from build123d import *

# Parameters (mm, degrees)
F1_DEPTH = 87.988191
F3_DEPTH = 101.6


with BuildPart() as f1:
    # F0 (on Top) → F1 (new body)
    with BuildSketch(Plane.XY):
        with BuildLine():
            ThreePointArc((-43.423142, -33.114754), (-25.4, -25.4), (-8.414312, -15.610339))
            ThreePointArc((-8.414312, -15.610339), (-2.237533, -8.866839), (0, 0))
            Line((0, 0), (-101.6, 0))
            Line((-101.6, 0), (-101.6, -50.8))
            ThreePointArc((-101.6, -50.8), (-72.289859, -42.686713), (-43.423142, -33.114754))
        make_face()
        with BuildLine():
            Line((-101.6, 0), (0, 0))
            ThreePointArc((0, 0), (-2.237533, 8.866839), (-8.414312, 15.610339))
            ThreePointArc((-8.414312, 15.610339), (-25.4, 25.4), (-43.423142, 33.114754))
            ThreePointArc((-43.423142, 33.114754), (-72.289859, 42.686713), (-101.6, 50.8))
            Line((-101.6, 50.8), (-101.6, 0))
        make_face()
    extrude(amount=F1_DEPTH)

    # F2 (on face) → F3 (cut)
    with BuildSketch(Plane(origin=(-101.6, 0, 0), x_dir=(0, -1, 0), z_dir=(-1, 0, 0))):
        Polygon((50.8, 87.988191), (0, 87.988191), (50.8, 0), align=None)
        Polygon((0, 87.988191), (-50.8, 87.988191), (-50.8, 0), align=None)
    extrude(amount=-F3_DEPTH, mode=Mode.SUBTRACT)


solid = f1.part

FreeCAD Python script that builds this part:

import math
import FreeCAD as App
import Part
import Sketcher
from FreeCAD import Vector
Q = App.Units.Quantity

doc = App.newDocument("Part")
body = doc.addObject("PartDesign::Body", "Body")

sketch1 = doc.addObject("Sketcher::SketchObject", "Sketch")
body.addObject(sketch1)
sketch1.AttachmentSupport = (doc.XY_Plane, [""])
sketch1.MapMode = "FlatFace"
sketch1.addGeometry([
    Part.ArcOfCircle(Part.Circle(Vector(-99, 123, 0), Vector(0, 0, 1), 166), math.radians(-70.22), math.radians(-56.65)),
    Part.ArcOfCircle(Part.Circle(Vector(-19, 0, 0), Vector(0, 0, 1), 19), math.radians(-57), math.radians(0)),
    Part.ArcOfCircle(Part.Circle(Vector(-19, 0, 0), Vector(0, 0, 1), 19), math.radians(0), math.radians(57)),
    Part.ArcOfCircle(Part.Circle(Vector(-99, -123, 0), Vector(0, 0, 1), 166), math.radians(56.65), math.radians(70.22)),
    Part.ArcOfCircle(Part.Circle(Vector(-249, -538, 0), Vector(0, 0, 1), 607), math.radians(70.22), math.radians(75.96)),
    Part.LineSegment(Vector(-102, 51, 0), Vector(-102, -51, 0)),
    Part.ArcOfCircle(Part.Circle(Vector(-249, 538, 0), Vector(0, 0, 1), 607), math.radians(-75.96), math.radians(-70.22)),
], False)
sketch1.addConstraint([
    Sketcher.Constraint("Tangent", 0, 2, 1, 1),
    Sketcher.Constraint("Tangent", 1, 2, 2, 1),
    Sketcher.Constraint("Tangent", 2, 2, 3, 1),
    Sketcher.Constraint("Tangent", 3, 2, 4, 1),
    Sketcher.Constraint("Coincident", 4, 2, 5, 1),
    Sketcher.Constraint("Coincident", 5, 2, 6, 1),
    Sketcher.Constraint("Tangent", 6, 2, 0, 1),
    Sketcher.Constraint("Vertical", 5),
    Sketcher.Constraint("Coincident", 1, 2, -1, 1),
    Sketcher.Constraint("Equal", 1, 2),
    Sketcher.Constraint("Equal", 0, 3),
    Sketcher.Constraint("Equal", 4, 6),
    Sketcher.Constraint("Symmetric", 0, 3, 3, 3, -1),
    Sketcher.Constraint("Vertical", 4, 3, 6, 3),
    Sketcher.Constraint("DistanceY", 5, 2, 5, 1, Q("4 in")),
    Sketcher.Constraint("DistanceX", 5, 2, -1, 1, Q("4 in")),
    Sketcher.Constraint("Radius", 0, 165.681649),
    Sketcher.Constraint("Radius", 1, 18.687404),
    Sketcher.Constraint("Radius", 4, 606.664682),
    Sketcher.Constraint("DistanceX", 4, 3, 1, 3, 230.050402),
])
pad1 = doc.addObject("PartDesign::Pad", "Pad")
body.addObject(pad1)
pad1.Profile = sketch1
pad1.Length = 87.988191

sketch2 = doc.addObject("Sketcher::SketchObject", "Sketch001")
body.addObject(sketch2)
sketch2.AttachmentSupport = (doc.YZ_Plane, [""])
sketch2.MapMode = "FlatFace"
sketch2.AttachmentOffset = App.Placement(Vector(0, 0, -4 * 25.4), App.Rotation())
sketch2.addGeometry([
    Part.LineSegment(Vector(-51, 88, 0), Vector(0, 88, 0)),
    Part.LineSegment(Vector(0, 88, 0), Vector(-51, 0, 0)),
    Part.LineSegment(Vector(-51, 0, 0), Vector(-51, 88, 0)),
    Part.LineSegment(Vector(0, 88, 0), Vector(51, 88, 0)),
    Part.LineSegment(Vector(51, 88, 0), Vector(51, 0, 0)),
    Part.LineSegment(Vector(51, 0, 0), Vector(0, 88, 0)),
], False)
sketch2.addConstraint([
    Sketcher.Constraint("Coincident", 0, 2, 1, 1),
    Sketcher.Constraint("Coincident", 1, 2, 2, 1),
    Sketcher.Constraint("Coincident", 2, 2, 0, 1),
    Sketcher.Constraint("Coincident", 3, 2, 4, 1),
    Sketcher.Constraint("Coincident", 4, 2, 5, 1),
    Sketcher.Constraint("Coincident", 5, 2, 3, 1),
    Sketcher.Constraint("Horizontal", 0),
    Sketcher.Constraint("Vertical", 2),
    Sketcher.Constraint("Horizontal", 3),
    Sketcher.Constraint("Vertical", 4),
    Sketcher.Constraint("Coincident", 5, 2, 0, 2),
    Sketcher.Constraint("Symmetric", 1, 2, 4, 2, -1, 1),
    Sketcher.Constraint("PointOnObject", 0, 2, -2),
    Sketcher.Constraint("PointOnObject", 1, 2, -1),
    Sketcher.Constraint("DistanceX", 0, 1, 0, 2, Q("2 in")),
    Sketcher.Constraint("Angle", 1, Q("-119.999997 deg")),
])
pocket1 = doc.addObject("PartDesign::Pocket", "Pocket")
body.addObject(pocket1)
pocket1.Profile = sketch2
pocket1.Length = Q("4 in")
pocket1.Reversed = True

doc.recompute()
